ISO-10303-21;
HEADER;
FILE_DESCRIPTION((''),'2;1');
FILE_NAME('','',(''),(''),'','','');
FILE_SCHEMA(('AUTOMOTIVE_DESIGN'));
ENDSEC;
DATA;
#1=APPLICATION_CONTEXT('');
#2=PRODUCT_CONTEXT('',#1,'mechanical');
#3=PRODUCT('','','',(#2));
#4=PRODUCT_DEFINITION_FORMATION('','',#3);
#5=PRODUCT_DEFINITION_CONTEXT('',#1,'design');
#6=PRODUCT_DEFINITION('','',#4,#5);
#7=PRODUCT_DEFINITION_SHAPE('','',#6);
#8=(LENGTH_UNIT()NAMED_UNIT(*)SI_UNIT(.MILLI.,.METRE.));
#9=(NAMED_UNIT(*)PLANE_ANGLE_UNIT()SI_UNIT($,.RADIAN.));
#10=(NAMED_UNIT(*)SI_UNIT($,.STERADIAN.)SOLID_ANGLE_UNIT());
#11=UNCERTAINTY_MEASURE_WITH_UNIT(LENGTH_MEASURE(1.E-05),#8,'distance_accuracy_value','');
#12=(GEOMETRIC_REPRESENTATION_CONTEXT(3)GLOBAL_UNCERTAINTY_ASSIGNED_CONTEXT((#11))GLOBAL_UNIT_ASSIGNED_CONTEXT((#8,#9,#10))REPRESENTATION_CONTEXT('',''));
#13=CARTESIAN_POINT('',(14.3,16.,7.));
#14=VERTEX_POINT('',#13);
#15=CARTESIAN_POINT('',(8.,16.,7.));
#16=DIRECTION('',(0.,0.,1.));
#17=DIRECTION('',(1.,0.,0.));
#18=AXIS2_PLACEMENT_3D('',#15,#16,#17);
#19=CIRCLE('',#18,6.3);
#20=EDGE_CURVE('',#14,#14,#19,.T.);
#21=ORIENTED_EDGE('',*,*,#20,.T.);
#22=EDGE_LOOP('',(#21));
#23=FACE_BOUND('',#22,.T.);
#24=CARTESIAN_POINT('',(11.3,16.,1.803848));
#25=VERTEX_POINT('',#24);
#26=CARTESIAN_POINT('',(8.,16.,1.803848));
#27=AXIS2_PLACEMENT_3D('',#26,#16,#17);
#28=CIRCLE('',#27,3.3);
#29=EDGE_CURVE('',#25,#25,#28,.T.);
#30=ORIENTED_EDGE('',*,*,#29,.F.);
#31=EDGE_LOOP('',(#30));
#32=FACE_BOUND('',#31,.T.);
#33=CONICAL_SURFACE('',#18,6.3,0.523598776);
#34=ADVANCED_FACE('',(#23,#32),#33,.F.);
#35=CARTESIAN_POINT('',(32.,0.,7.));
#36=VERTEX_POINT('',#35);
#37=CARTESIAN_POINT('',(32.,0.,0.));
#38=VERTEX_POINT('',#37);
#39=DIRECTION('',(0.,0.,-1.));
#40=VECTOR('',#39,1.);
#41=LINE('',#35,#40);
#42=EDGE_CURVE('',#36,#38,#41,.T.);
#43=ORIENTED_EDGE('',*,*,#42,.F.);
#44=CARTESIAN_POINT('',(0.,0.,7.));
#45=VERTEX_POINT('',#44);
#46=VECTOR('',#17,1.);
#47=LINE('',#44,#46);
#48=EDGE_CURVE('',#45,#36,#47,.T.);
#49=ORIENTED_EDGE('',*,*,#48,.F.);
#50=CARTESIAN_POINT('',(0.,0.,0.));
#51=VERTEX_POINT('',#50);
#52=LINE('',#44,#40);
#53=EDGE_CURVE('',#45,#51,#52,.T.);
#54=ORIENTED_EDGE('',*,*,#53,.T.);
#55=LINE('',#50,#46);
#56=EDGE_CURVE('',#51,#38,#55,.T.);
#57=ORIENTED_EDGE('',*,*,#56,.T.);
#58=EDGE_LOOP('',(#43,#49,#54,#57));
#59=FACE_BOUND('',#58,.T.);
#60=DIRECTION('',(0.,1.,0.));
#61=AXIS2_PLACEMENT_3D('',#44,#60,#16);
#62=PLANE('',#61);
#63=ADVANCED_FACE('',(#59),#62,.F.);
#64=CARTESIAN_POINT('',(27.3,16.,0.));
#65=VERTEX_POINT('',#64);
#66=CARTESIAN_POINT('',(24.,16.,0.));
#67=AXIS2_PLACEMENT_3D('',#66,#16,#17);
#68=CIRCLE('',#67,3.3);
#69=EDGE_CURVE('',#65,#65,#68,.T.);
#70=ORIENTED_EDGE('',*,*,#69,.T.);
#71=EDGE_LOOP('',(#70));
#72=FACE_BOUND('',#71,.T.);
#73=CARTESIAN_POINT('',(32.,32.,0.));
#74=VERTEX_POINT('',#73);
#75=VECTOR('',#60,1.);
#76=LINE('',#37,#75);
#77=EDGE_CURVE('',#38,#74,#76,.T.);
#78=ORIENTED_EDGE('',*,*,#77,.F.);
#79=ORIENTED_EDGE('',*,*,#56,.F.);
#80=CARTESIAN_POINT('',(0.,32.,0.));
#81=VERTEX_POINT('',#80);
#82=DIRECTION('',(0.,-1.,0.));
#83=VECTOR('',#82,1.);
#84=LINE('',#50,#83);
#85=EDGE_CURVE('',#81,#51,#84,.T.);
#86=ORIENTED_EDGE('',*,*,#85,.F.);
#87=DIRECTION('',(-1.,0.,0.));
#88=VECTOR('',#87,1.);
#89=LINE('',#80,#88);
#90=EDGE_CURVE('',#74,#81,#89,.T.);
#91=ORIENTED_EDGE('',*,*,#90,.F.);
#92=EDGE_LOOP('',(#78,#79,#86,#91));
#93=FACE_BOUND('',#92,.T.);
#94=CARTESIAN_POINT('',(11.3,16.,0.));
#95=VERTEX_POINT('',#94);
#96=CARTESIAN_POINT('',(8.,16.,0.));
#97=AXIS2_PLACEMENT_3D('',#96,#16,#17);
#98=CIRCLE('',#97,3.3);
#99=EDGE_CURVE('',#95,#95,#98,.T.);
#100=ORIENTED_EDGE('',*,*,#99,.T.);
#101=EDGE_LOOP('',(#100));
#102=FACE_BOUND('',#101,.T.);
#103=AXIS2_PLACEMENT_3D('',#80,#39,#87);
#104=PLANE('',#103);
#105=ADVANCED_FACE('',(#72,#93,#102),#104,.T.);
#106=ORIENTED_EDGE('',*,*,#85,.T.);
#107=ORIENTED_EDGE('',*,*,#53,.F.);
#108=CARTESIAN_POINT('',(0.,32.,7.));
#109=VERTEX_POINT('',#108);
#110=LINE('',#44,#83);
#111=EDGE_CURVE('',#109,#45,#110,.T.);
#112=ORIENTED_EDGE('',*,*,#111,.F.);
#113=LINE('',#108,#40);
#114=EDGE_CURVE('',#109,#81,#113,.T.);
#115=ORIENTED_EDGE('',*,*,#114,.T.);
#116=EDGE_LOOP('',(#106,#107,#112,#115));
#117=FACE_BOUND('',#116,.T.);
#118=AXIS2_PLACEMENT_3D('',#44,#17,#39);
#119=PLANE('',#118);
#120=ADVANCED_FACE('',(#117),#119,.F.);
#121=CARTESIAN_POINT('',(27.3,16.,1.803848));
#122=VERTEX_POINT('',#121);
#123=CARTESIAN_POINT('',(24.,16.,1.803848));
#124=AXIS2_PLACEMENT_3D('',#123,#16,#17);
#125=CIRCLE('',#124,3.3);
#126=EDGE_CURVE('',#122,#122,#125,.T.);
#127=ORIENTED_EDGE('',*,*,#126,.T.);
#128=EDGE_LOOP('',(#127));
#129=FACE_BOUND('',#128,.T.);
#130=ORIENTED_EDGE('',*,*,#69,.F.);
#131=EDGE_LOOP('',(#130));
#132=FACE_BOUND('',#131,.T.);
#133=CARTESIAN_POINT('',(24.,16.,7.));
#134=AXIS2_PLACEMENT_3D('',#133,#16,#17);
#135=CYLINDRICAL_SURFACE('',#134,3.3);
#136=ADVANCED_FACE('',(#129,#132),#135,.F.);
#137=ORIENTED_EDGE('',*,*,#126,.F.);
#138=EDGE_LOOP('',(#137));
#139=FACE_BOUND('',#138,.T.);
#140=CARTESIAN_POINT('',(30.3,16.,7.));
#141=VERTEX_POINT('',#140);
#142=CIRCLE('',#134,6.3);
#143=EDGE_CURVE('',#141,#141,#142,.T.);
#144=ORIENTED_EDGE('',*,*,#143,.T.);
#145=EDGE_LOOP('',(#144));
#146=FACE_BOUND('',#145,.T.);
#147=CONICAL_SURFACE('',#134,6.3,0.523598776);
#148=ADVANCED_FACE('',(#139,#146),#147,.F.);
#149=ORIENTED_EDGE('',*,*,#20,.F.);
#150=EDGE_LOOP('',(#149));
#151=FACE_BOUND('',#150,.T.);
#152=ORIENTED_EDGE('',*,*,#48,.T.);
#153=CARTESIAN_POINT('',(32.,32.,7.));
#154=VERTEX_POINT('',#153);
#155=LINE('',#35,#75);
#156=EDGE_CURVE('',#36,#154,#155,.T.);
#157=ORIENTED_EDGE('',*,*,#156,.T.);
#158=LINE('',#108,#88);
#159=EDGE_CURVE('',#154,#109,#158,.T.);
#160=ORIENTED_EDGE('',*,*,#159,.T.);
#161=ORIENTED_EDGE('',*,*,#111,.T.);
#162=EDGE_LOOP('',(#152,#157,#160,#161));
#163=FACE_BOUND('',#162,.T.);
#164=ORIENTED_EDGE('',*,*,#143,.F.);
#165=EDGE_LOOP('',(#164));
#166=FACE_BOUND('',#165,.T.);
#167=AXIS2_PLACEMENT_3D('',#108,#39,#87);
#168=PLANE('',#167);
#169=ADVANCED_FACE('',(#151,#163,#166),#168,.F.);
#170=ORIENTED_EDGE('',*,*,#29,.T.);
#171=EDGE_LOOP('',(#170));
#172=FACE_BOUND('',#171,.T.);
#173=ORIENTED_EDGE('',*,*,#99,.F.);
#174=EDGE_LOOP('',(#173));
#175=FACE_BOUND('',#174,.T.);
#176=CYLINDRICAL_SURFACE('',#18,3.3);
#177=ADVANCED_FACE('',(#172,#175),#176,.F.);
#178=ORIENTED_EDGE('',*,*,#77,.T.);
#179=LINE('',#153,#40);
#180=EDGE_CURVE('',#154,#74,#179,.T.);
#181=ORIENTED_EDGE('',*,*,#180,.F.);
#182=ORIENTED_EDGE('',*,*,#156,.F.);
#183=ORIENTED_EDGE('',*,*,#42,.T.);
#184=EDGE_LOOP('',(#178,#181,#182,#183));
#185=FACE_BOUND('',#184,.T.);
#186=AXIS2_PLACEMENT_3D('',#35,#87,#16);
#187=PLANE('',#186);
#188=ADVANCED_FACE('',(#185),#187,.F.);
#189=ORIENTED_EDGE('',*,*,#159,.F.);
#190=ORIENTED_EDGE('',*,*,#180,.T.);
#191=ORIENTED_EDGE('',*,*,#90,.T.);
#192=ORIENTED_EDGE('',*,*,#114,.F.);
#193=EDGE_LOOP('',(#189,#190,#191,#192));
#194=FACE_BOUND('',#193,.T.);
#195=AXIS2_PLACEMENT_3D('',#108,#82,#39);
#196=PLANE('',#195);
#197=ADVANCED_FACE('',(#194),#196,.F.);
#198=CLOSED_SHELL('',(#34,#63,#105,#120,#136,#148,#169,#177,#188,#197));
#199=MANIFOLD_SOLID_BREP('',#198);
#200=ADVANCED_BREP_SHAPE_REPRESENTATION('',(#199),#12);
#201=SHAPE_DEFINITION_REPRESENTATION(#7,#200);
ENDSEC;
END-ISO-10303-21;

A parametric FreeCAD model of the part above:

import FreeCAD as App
import Part
import Sketcher
from FreeCAD import Vector
Q = App.Units.Quantity


def add_polygon(sketch, points):
    """Adds a closed chain of lines whose ends are joined by coincident constraints."""
    first, n = sketch.GeometryCount, len(points)
    for a, b in zip(points, points[1:] + points[:1]):
        sketch.addGeometry(Part.LineSegment(App.Vector(*a, 0), App.Vector(*b, 0)), False)
    for i in range(n):
        sketch.addConstraint(Sketcher.Constraint("Coincident", first + i, 2, first + (i + 1) % n, 1))

doc = App.newDocument("Part")
params = doc.addObject("Spreadsheet::Sheet", "Params")
for row, (alias, value) in enumerate([
    ("sketch1_width", "32 mm"),
    ("pad1_length", "7 mm"),
    ("sketch2_height", "7 mm"),
    ("sketch2_length", "6 mm"),
    ("sketch2_width", "6.3 mm"),
    ("groove_angle", "360 deg"),
    ("linearpattern_pitch", "16 mm"),
], start=1):
    params.set(f"A{row}", alias)
    params.set(f"B{row}", "=" + value)
    params.setAlias(f"B{row}", alias)

body = doc.addObject("PartDesign::Body", "Body")

sketch1 = doc.addObject("Sketcher::SketchObject", "Sketch")
body.addObject(sketch1)
sketch1.AttachmentSupport = (doc.XY_Plane, [""])
sketch1.MapMode = "FlatFace"
add_polygon(sketch1, [(0, 32), (0, 0), (32, 0), (32, 32)])
sketch1.addConstraint([
    Sketcher.Constraint("Vertical", 0),
    Sketcher.Constraint("Horizontal", 1),
    Sketcher.Constraint("Vertical", 2),
    Sketcher.Constraint("Horizontal", 3),
    Sketcher.Constraint("Coincident", 0, 2, -1, 1),
    Sketcher.Constraint("Equal", 3, 0),
    Sketcher.Constraint("DistanceX", 1, 1, 1, 2, Q("32 mm")),
])
sketch1.setExpression("Constraints[10]", "Params.sketch1_width")
pad1 = doc.addObject("PartDesign::Pad", "Pad")
body.addObject(pad1)
pad1.Profile = sketch1
pad1.setExpression("Length", "Params.pad1_length")

sketch2 = doc.addObject("Sketcher::SketchObject", "Sketch001")
body.addObject(sketch2)
sketch2.AttachmentSupport = (doc.YZ_Plane, [""])
sketch2.MapMode = "FlatFace"
sketch2.AttachmentOffset = App.Placement(Vector(0, 0, 8), App.Rotation())
add_polygon(sketch2, [(16, 0), (16, 7), (9.7, 7), (12.7, 1.803848), (12.7, 0)])
sketch2.addGeometry(Part.LineSegment(Vector(16, 7, 0), Vector(16, 0, 0)), True)
sketch2.addConstraint([
    Sketcher.Constraint("Vertical", 0),
    Sketcher.Constraint("Horizontal", 1),
    Sketcher.Constraint("Vertical", 3),
    Sketcher.Constraint("Horizontal", 4),
    Sketcher.Constraint("Vertical", 5),
    Sketcher.Constraint("Coincident", 5, 1, 0, 2),
    Sketcher.Constraint("PointOnObject", 3, 2, -1),
    Sketcher.Constraint("PointOnObject", 5, 2, -1),
    Sketcher.Constraint("DistanceY", 0, 1, 0, 2, Q("7 mm")),
    Sketcher.Constraint("Angle", 2, Q("-60 deg")),
    Sketcher.Constraint("Distance", 2, Q("6 mm")),
    Sketcher.Constraint("DistanceX", 1, 2, 1, 1, Q("6.3 mm")),
    Sketcher.Constraint("DistanceX", -1, 1, 0, 2, Q("16 mm")),
])
sketch2.setExpression("Constraints[13]", "Params.sketch2_height")
sketch2.setExpression("Constraints[15]", "Params.sketch2_length")
sketch2.setExpression("Constraints[16]", "Params.sketch2_width")
groove = doc.addObject("PartDesign::Groove", "Groove")
body.addObject(groove)
groove.Profile = sketch2
groove.ReferenceAxis = (sketch2, ["Axis0"])
groove.setExpression("Angle", "Params.groove_angle")
doc.recompute()

linearpattern = doc.addObject("PartDesign::LinearPattern", "LinearPattern")
body.addObject(linearpattern)
linearpattern.Originals = [groove]
linearpattern.Direction = (doc.X_Axis, [""])
linearpattern.Mode = "offset"
linearpattern.setExpression("Offset", "Params.linearpattern_pitch")
linearpattern.Occurrences = 2
body.Tip = linearpattern

doc.recompute()
